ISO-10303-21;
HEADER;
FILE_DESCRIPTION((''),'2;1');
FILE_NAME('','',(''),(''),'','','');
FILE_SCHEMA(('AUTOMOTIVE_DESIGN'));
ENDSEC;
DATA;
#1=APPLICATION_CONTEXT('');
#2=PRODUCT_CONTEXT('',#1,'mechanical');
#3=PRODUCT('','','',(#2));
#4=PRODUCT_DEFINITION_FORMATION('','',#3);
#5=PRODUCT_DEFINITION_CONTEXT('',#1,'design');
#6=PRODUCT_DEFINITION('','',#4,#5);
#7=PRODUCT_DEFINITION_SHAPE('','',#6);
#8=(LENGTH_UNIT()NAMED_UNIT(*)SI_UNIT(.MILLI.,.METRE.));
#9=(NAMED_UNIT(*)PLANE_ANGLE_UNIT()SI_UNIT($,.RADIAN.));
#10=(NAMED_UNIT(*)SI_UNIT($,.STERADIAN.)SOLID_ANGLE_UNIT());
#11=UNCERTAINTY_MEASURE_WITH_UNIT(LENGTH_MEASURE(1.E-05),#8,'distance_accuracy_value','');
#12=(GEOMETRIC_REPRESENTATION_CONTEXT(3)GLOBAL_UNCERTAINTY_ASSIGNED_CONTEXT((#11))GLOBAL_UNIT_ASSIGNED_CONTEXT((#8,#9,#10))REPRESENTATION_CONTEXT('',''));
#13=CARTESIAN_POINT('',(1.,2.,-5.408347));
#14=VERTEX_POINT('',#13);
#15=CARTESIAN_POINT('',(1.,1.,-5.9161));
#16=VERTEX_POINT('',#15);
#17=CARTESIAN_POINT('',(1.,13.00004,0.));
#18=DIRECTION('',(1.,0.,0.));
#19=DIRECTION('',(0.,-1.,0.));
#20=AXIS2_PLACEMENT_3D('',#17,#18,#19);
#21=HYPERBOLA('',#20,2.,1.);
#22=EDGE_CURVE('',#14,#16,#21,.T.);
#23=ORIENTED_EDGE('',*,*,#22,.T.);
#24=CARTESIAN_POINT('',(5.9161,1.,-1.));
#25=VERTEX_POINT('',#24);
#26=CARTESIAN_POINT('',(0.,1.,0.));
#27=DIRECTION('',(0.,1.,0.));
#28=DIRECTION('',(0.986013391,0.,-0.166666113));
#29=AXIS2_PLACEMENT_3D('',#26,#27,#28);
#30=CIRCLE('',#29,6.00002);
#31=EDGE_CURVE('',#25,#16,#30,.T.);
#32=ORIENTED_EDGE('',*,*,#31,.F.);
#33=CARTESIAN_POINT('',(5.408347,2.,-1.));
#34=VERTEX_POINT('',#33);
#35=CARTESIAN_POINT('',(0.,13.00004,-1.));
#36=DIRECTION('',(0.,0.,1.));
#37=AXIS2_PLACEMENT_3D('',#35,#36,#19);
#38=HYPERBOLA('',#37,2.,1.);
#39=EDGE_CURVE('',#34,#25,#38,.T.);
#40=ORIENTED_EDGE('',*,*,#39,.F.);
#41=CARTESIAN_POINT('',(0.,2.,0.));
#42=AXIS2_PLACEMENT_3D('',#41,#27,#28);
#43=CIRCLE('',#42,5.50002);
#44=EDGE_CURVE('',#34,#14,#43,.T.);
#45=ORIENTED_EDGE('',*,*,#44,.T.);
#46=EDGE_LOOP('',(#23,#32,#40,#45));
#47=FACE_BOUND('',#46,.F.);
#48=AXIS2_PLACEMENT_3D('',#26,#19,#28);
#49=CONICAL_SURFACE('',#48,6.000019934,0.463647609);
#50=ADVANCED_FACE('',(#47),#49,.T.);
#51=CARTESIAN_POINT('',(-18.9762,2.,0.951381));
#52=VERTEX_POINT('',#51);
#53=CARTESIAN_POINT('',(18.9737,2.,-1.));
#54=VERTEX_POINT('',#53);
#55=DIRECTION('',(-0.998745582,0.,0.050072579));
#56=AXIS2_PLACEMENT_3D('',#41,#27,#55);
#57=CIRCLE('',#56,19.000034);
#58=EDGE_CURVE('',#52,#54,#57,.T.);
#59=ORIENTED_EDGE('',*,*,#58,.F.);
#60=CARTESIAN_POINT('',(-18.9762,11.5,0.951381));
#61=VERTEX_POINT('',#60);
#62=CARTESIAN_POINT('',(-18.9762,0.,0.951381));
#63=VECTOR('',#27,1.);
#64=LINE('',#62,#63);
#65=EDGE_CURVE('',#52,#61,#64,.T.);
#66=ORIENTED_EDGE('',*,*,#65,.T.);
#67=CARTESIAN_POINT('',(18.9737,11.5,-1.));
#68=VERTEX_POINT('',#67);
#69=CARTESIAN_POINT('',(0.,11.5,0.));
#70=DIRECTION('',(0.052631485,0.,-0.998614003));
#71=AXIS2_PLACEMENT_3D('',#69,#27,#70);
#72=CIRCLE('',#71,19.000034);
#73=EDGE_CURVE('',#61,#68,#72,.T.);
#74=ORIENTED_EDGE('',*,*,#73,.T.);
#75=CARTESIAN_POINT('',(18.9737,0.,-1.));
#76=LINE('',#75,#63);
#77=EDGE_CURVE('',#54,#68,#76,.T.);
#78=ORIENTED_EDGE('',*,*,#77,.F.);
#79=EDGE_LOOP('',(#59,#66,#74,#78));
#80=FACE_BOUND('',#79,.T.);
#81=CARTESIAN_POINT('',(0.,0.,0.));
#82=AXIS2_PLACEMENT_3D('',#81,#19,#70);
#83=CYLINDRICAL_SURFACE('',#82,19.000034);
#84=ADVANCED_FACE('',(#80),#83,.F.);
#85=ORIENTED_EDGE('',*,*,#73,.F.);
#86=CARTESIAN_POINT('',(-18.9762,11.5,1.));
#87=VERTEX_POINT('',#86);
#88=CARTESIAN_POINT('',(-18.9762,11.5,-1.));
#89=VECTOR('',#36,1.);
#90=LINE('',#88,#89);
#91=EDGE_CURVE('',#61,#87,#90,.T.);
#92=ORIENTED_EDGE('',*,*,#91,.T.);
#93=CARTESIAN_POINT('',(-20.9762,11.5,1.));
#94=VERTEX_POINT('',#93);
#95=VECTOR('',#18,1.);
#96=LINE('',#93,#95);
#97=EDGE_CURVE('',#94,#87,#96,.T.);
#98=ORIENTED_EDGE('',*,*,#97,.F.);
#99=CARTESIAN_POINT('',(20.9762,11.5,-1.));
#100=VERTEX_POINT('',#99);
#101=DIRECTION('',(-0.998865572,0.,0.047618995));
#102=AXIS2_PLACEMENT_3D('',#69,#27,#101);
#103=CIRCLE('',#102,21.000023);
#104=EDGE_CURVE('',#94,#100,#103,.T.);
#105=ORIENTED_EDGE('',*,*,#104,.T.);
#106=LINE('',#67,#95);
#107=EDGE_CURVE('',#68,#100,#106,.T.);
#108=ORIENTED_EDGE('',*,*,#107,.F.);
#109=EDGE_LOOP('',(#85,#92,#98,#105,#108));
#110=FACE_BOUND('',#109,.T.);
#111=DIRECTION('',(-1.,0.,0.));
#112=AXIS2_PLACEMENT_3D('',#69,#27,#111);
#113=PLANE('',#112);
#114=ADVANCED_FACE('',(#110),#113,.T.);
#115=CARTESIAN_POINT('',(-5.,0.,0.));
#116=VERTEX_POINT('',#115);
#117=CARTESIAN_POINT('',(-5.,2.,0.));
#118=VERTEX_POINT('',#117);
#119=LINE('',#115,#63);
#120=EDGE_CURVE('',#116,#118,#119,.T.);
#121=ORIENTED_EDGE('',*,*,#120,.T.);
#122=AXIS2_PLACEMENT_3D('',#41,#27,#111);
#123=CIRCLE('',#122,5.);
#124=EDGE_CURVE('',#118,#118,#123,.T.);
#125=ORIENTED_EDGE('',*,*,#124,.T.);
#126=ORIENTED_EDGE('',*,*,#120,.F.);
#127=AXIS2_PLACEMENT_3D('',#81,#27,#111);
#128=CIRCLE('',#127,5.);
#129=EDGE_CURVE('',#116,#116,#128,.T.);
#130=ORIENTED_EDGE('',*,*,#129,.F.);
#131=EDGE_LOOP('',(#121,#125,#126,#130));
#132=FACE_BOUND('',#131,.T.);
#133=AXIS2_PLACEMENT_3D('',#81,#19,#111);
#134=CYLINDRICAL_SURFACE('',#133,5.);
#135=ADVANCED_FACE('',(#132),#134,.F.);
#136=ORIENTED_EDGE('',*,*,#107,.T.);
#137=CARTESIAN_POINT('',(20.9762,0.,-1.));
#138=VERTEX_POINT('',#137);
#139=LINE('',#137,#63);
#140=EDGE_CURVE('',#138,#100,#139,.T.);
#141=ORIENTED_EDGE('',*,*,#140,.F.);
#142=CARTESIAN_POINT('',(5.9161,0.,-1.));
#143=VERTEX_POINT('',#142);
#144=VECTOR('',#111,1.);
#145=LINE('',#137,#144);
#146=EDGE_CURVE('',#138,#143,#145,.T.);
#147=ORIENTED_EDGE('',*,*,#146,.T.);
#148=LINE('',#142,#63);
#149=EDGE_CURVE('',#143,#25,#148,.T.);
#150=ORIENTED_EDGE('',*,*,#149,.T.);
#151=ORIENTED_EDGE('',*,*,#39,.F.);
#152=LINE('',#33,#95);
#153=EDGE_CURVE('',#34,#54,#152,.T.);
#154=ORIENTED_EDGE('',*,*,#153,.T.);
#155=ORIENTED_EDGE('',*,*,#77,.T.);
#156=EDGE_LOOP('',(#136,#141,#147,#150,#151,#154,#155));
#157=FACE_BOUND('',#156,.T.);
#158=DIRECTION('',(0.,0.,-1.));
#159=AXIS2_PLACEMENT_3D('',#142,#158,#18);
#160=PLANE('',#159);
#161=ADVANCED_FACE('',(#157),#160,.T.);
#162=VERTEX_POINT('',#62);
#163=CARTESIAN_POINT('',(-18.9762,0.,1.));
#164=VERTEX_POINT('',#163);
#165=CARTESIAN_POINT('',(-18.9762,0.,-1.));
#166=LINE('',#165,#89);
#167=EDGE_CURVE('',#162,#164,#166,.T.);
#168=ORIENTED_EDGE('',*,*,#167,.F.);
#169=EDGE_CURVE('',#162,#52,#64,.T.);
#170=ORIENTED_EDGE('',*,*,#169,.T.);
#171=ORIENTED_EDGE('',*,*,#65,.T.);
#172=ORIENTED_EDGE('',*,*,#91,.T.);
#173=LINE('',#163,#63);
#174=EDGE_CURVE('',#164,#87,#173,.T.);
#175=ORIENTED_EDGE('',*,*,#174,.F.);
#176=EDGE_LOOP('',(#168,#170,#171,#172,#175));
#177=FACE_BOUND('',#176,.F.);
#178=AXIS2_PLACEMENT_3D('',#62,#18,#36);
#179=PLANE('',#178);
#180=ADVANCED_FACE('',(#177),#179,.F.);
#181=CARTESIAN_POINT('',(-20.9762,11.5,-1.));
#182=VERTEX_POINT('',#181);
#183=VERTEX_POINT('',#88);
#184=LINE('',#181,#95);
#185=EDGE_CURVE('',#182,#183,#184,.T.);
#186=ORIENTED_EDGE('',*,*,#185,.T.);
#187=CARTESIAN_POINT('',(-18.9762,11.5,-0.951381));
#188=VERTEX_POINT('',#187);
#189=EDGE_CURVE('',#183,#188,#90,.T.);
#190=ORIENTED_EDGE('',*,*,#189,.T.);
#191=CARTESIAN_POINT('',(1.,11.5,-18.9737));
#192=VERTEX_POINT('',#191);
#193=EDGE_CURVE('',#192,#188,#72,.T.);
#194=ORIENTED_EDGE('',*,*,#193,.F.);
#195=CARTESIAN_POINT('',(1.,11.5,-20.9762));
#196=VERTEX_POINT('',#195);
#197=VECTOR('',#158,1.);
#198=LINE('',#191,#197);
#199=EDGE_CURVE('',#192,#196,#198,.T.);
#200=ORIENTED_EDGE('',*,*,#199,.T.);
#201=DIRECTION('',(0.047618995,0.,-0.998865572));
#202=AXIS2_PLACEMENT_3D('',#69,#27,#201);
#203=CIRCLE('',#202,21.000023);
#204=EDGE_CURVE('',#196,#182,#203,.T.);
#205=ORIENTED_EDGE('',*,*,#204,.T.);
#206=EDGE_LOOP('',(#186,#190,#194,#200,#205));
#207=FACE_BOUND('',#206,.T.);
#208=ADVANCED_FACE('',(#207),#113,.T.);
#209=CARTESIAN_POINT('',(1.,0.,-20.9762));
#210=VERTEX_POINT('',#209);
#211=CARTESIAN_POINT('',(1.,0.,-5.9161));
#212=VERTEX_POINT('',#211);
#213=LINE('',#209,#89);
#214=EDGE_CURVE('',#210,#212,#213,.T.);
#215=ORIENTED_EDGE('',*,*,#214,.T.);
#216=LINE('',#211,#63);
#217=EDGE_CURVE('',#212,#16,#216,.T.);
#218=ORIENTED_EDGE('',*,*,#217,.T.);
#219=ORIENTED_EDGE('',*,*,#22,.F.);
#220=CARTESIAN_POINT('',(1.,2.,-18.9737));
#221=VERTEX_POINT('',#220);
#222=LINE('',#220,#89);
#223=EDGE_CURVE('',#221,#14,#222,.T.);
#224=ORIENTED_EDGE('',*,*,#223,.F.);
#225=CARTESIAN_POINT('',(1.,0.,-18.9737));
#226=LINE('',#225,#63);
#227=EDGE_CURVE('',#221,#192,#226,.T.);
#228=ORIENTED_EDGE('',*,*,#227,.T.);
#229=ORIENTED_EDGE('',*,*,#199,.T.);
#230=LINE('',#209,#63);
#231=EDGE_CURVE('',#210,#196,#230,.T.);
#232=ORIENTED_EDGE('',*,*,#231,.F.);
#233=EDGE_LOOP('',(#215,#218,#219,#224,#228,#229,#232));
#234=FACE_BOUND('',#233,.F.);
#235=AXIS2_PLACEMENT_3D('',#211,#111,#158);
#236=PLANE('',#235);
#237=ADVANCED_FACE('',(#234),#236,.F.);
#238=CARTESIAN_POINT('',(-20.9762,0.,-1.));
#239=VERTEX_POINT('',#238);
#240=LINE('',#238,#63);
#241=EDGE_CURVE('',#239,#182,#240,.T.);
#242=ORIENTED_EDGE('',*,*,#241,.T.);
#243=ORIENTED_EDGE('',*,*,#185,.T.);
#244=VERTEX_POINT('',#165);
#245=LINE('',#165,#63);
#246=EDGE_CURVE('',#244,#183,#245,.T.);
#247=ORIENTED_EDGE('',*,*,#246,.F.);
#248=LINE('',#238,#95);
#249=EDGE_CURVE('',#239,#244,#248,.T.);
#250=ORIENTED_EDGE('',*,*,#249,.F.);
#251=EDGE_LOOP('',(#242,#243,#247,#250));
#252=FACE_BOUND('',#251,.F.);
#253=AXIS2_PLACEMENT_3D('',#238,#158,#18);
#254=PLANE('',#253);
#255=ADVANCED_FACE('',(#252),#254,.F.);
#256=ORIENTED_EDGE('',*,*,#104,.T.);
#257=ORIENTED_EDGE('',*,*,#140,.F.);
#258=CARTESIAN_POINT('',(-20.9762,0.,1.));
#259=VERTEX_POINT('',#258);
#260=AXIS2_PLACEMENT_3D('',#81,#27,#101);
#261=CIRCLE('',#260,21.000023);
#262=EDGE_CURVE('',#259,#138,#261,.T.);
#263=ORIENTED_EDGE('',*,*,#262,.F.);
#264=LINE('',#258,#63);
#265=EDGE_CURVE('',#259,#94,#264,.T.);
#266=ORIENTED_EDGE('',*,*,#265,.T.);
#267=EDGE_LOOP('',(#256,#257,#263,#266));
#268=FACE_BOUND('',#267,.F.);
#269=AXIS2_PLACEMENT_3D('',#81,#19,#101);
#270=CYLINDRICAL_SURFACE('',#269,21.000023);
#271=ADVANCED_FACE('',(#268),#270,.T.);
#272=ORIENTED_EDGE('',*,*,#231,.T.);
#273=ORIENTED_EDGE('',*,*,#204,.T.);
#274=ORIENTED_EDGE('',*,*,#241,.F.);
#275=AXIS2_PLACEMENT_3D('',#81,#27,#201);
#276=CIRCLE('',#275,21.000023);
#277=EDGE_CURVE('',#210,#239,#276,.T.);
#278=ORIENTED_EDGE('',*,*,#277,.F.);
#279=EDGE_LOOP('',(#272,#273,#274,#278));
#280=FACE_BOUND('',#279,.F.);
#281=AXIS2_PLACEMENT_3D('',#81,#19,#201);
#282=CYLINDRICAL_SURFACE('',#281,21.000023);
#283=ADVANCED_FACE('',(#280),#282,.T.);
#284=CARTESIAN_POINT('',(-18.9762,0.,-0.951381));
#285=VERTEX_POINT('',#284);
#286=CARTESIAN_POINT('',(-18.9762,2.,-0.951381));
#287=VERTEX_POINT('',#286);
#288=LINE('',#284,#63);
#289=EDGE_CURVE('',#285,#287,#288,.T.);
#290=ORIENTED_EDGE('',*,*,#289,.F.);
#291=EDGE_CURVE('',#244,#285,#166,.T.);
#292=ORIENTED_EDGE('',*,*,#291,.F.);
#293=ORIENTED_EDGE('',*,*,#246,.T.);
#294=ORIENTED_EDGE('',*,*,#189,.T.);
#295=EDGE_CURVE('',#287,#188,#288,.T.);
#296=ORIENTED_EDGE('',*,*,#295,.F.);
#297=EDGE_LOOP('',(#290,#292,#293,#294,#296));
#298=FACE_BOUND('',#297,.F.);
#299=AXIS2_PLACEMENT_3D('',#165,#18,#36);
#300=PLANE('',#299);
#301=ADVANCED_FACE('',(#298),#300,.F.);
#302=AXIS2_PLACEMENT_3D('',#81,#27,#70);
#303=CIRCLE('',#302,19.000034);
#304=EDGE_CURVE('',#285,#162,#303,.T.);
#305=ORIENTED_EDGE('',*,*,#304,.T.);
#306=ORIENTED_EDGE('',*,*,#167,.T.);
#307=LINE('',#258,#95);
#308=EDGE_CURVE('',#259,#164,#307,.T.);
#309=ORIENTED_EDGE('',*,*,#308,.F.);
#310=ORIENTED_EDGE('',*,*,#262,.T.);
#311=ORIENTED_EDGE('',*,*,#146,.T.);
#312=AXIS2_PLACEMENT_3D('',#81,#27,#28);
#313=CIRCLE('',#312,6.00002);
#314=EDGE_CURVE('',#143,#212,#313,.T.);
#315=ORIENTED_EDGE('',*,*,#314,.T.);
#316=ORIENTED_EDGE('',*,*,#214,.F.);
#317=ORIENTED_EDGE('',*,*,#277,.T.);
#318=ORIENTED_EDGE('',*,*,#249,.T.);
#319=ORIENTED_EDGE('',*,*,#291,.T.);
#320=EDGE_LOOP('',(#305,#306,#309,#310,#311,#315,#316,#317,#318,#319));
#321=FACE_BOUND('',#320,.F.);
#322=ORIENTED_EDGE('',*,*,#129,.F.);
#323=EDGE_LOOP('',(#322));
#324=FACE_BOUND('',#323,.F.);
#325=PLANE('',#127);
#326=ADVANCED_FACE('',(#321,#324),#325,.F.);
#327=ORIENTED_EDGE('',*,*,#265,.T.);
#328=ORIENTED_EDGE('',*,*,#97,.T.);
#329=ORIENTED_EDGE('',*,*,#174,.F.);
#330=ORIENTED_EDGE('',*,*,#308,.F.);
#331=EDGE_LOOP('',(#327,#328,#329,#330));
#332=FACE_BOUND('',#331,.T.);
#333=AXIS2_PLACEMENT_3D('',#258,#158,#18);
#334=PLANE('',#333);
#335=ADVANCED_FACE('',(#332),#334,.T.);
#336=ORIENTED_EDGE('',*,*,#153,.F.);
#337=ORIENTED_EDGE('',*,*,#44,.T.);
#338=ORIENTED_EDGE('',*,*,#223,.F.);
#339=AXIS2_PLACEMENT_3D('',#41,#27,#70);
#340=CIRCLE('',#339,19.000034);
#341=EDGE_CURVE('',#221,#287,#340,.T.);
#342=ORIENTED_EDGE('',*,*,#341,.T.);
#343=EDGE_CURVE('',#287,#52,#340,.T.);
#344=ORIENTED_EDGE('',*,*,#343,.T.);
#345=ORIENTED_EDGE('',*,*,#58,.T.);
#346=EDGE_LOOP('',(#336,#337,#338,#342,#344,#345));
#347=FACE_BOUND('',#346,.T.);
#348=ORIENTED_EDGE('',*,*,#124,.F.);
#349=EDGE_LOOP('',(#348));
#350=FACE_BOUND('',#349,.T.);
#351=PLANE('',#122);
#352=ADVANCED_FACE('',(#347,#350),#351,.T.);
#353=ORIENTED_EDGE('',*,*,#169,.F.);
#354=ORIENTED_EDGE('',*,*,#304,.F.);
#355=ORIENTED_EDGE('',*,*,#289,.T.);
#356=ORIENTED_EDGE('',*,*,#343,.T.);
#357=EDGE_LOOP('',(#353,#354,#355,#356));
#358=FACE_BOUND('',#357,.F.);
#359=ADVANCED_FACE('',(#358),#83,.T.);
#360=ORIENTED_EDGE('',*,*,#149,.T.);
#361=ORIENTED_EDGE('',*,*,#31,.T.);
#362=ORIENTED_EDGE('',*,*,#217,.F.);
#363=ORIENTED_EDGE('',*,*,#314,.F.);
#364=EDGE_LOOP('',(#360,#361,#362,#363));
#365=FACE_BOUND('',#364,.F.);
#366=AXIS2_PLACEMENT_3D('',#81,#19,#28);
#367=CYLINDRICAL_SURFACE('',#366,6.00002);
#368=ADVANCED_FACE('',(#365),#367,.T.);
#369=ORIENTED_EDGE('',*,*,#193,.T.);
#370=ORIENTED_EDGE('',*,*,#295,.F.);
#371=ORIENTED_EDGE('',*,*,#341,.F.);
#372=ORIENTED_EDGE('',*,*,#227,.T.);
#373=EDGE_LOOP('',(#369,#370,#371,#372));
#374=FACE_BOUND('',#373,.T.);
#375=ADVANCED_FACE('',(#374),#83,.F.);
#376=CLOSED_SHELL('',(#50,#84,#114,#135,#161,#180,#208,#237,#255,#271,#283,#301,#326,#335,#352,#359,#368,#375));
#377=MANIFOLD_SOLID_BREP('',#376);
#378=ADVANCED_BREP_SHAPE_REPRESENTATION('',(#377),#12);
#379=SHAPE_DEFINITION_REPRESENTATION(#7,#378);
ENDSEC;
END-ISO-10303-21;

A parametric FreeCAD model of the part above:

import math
import FreeCAD as App
import Part
import Sketcher

V = App.Vector


def edges_at(feature, points):
    """Names of the edges that pass closest to the given points."""
    edges = feature.Shape.Edges
    near = lambda p: min(range(len(edges)), key=lambda i: edges[i].distToShape(Part.Vertex(*p))[0])
    return sorted({f"Edge{near(p) + 1}" for p in points})

doc = App.newDocument("Part")
params = doc.addObject("Spreadsheet::Sheet", "Params")
for row, (alias, value) in enumerate([
    ("sketch1_diameter", "10 mm"),
    ("sketch1_radius", "19 mm"),
    ("sketch1_radius2", "6 mm"),
    ("pad1_length", "2 mm"),
    ("chamfer_size", "0.5 mm"),
    ("chamfer_size2", "1 mm"),
    ("sketch2_radius", "19 mm"),
    ("sketch2_width", "2 mm"),
    ("sketch2_radius2", "21 mm"),
    ("pad2_length", "11.5 mm"),
], start=1):
    params.set(f"A{row}", alias)
    params.set(f"B{row}", "=" + value)
    params.setAlias(f"B{row}", alias)

body = doc.addObject("PartDesign::Body", "Body")

# Sketch on XZ plane
sketch1 = doc.addObject("Sketcher::SketchObject", "Sketch")
body.addObject(sketch1)
sketch1.AttachmentSupport = (doc.XZ_Plane, [""])
sketch1.MapMode = "FlatFace"
sketch1.addGeometry(Part.ArcOfCircle(Part.Circle(V(0, 0, 0), V(0, 0, 1), 6), math.radians(-80), math.radians(-10)), False)
sketch1.addGeometry(Part.LineSegment(V(1, -6, 0), V(1, -19, 0)), False)
sketch1.addGeometry(Part.ArcOfCircle(Part.Circle(V(0, 0, 0), V(0, 0, 1), 19), math.radians(-3), math.radians(273)), False)
sketch1.addGeometry(Part.LineSegment(V(19, -1, 0), V(6, -1, 0)), False)
sketch1.addGeometry(Part.Circle(V(0, 0, 0), V(0, 0, 1), 5), False)
sketch1.addConstraint(Sketcher.Constraint("Coincident", 0, 1, 1, 1))
sketch1.addConstraint(Sketcher.Constraint("Coincident", 1, 2, 2, 2))
sketch1.addConstraint(Sketcher.Constraint("Coincident", 2, 1, 3, 1))
sketch1.addConstraint(Sketcher.Constraint("Coincident", 3, 2, 0, 2))
sketch1.addConstraint(Sketcher.Constraint("Vertical", 1))
sketch1.addConstraint(Sketcher.Constraint("Horizontal", 3))
sketch1.addConstraint(Sketcher.Constraint("Coincident", 0, 3, -1, 1))
sketch1.addConstraint(Sketcher.Constraint("Coincident", 2, 3, -1, 1))
sketch1.addConstraint(Sketcher.Constraint("Coincident", 4, 3, -1, 1))
sketch1.addConstraint(Sketcher.Constraint("Equal", 3, 1))
sketch1.addConstraint(Sketcher.Constraint("Diameter", 4, 10.0))
sketch1.addConstraint(Sketcher.Constraint("Radius", 2, 19.0))
sketch1.addConstraint(Sketcher.Constraint("Radius", 0, 6.0))
sketch1.addConstraint(Sketcher.Constraint("DistanceX", -1, 1, 0, 1, 1.0))
sketch1.setExpression("Constraints[10]", "Params.sketch1_diameter")
sketch1.setExpression("Constraints[11]", "Params.sketch1_radius")
sketch1.setExpression("Constraints[12]", "Params.sketch1_radius2")
pad1 = doc.addObject("PartDesign::Pad", "Pad")
body.addObject(pad1)
pad1.Profile = sketch1
pad1.setExpression("Length", "Params.pad1_length")
pad1.Reversed = True
doc.recompute()

chamfer = doc.addObject("PartDesign::Chamfer", "Chamfer")
body.addObject(chamfer)
chamfer.Base = (pad1, edges_at(pad1, [(4.243, 2, -4.243)]))
chamfer.ChamferType = "Two distances"
chamfer.setExpression("Size", "Params.chamfer_size")
chamfer.setExpression("Size2", "Params.chamfer_size2")
chamfer.FlipDirection = True

# Sketch on XZ plane
sketch2 = doc.addObject("Sketcher::SketchObject", "Sketch001")
body.addObject(sketch2)
sketch2.AttachmentSupport = (doc.XZ_Plane, [""])
sketch2.MapMode = "FlatFace"
sketch2.addGeometry(Part.ArcOfCircle(Part.Circle(V(0, 0, 0), V(0, 0, 1), 19), math.radians(-3), math.radians(177)), False)
sketch2.addGeometry(Part.LineSegment(V(-18.976, 0.951, 0), V(-18.976, 1, 0)), False)
sketch2.addGeometry(Part.LineSegment(V(-18.976, 1, 0), V(-20.976, 1, 0)), False)
sketch2.addGeometry(Part.ArcOfCircle(Part.Circle(V(0, 0, 0), V(0, 0, 1), 21), math.radians(-3), math.radians(177)), False)
sketch2.addGeometry(Part.LineSegment(V(20.976, -1, 0), V(18.974, -1, 0)), False)
sketch2.addGeometry(Part.ArcOfCircle(Part.Circle(V(0, 0, 0), V(0, 0, 1), 19), math.radians(-177), math.radians(-87)), False)
sketch2.addGeometry(Part.LineSegment(V(1, -18.974, 0), V(1, -20.976, 0)), False)
sketch2.addGeometry(Part.ArcOfCircle(Part.Circle(V(0, 0, 0), V(0, 0, 1), 21), math.radians(-177), math.radians(-87)), False)
sketch2.addGeometry(Part.LineSegment(V(-20.976, -1, 0), V(-18.976, -1, 0)), False)
sketch2.addGeometry(Part.LineSegment(V(-18.976, -1, 0), V(-18.976, -0.951, 0)), False)
sketch2.addConstraint(Sketcher.Constraint("Coincident", 0, 2, 1, 1))
sketch2.addConstraint(Sketcher.Constraint("Coincident", 1, 2, 2, 1))
sketch2.addConstraint(Sketcher.Constraint("Coincident", 2, 2, 3, 2))
sketch2.addConstraint(Sketcher.Constraint("Coincident", 3, 1, 4, 1))
sketch2.addConstraint(Sketcher.Constraint("Coincident", 4, 2, 0, 1))
sketch2.addConstraint(Sketcher.Constraint("Coincident", 5, 2, 6, 1))
sketch2.addConstraint(Sketcher.Constraint("Coincident", 6, 2, 7, 2))
sketch2.addConstraint(Sketcher.Constraint("Coincident", 7, 1, 8, 1))
sketch2.addConstraint(Sketcher.Constraint("Coincident", 8, 2, 9, 1))
sketch2.addConstraint(Sketcher.Constraint("Coincident", 9, 2, 5, 1))
sketch2.addConstraint(Sketcher.Constraint("Vertical", 1))
sketch2.addConstraint(Sketcher.Constraint("Horizontal", 2))
sketch2.addConstraint(Sketcher.Constraint("Horizontal", 4))
sketch2.addConstraint(Sketcher.Constraint("Vertical", 6))
sketch2.addConstraint(Sketcher.Constraint("Horizontal", 8))
sketch2.addConstraint(Sketcher.Constraint("Vertical", 9))
sketch2.addConstraint(Sketcher.Constraint("Coincident", 0, 3, -1, 1))
sketch2.addConstraint(Sketcher.Constraint("Coincident", 3, 3, -1, 1))
sketch2.addConstraint(Sketcher.Constraint("Coincident", 5, 3, -1, 1))
sketch2.addConstraint(Sketcher.Constraint("Coincident", 7, 3, -1, 1))
sketch2.addConstraint(Sketcher.Constraint("Equal", 0, 5))
sketch2.addConstraint(Sketcher.Constraint("Equal", 3, 7))
sketch2.addConstraint(Sketcher.Constraint("Symmetric", 1, 2, 8, 2, -1))
sketch2.addConstraint(Sketcher.Constraint("Horizontal", 4, 2, 7, 1))
sketch2.addConstraint(Sketcher.Constraint("Radius", 0, 19.0))
sketch2.addConstraint(Sketcher.Constraint("DistanceX", 2, 2, 2, 1, 2.0))
sketch2.addConstraint(Sketcher.Constraint("Radius", 3, 21.0))
sketch2.addConstraint(Sketcher.Constraint("DistanceY", 7, 1, 2, 2, 2.0))
sketch2.addConstraint(Sketcher.Constraint("DistanceX", -1, 1, 5, 2, 1.0))
sketch2.setExpression("Constraints[24]", "Params.sketch2_radius")
sketch2.setExpression("Constraints[25]", "Params.sketch2_width")
sketch2.setExpression("Constraints[26]", "Params.sketch2_radius2")
pad2 = doc.addObject("PartDesign::Pad", "Pad001")
body.addObject(pad2)
pad2.Profile = sketch2
pad2.setExpression("Length", "Params.pad2_length")
pad2.Reversed = True

doc.recompute()
